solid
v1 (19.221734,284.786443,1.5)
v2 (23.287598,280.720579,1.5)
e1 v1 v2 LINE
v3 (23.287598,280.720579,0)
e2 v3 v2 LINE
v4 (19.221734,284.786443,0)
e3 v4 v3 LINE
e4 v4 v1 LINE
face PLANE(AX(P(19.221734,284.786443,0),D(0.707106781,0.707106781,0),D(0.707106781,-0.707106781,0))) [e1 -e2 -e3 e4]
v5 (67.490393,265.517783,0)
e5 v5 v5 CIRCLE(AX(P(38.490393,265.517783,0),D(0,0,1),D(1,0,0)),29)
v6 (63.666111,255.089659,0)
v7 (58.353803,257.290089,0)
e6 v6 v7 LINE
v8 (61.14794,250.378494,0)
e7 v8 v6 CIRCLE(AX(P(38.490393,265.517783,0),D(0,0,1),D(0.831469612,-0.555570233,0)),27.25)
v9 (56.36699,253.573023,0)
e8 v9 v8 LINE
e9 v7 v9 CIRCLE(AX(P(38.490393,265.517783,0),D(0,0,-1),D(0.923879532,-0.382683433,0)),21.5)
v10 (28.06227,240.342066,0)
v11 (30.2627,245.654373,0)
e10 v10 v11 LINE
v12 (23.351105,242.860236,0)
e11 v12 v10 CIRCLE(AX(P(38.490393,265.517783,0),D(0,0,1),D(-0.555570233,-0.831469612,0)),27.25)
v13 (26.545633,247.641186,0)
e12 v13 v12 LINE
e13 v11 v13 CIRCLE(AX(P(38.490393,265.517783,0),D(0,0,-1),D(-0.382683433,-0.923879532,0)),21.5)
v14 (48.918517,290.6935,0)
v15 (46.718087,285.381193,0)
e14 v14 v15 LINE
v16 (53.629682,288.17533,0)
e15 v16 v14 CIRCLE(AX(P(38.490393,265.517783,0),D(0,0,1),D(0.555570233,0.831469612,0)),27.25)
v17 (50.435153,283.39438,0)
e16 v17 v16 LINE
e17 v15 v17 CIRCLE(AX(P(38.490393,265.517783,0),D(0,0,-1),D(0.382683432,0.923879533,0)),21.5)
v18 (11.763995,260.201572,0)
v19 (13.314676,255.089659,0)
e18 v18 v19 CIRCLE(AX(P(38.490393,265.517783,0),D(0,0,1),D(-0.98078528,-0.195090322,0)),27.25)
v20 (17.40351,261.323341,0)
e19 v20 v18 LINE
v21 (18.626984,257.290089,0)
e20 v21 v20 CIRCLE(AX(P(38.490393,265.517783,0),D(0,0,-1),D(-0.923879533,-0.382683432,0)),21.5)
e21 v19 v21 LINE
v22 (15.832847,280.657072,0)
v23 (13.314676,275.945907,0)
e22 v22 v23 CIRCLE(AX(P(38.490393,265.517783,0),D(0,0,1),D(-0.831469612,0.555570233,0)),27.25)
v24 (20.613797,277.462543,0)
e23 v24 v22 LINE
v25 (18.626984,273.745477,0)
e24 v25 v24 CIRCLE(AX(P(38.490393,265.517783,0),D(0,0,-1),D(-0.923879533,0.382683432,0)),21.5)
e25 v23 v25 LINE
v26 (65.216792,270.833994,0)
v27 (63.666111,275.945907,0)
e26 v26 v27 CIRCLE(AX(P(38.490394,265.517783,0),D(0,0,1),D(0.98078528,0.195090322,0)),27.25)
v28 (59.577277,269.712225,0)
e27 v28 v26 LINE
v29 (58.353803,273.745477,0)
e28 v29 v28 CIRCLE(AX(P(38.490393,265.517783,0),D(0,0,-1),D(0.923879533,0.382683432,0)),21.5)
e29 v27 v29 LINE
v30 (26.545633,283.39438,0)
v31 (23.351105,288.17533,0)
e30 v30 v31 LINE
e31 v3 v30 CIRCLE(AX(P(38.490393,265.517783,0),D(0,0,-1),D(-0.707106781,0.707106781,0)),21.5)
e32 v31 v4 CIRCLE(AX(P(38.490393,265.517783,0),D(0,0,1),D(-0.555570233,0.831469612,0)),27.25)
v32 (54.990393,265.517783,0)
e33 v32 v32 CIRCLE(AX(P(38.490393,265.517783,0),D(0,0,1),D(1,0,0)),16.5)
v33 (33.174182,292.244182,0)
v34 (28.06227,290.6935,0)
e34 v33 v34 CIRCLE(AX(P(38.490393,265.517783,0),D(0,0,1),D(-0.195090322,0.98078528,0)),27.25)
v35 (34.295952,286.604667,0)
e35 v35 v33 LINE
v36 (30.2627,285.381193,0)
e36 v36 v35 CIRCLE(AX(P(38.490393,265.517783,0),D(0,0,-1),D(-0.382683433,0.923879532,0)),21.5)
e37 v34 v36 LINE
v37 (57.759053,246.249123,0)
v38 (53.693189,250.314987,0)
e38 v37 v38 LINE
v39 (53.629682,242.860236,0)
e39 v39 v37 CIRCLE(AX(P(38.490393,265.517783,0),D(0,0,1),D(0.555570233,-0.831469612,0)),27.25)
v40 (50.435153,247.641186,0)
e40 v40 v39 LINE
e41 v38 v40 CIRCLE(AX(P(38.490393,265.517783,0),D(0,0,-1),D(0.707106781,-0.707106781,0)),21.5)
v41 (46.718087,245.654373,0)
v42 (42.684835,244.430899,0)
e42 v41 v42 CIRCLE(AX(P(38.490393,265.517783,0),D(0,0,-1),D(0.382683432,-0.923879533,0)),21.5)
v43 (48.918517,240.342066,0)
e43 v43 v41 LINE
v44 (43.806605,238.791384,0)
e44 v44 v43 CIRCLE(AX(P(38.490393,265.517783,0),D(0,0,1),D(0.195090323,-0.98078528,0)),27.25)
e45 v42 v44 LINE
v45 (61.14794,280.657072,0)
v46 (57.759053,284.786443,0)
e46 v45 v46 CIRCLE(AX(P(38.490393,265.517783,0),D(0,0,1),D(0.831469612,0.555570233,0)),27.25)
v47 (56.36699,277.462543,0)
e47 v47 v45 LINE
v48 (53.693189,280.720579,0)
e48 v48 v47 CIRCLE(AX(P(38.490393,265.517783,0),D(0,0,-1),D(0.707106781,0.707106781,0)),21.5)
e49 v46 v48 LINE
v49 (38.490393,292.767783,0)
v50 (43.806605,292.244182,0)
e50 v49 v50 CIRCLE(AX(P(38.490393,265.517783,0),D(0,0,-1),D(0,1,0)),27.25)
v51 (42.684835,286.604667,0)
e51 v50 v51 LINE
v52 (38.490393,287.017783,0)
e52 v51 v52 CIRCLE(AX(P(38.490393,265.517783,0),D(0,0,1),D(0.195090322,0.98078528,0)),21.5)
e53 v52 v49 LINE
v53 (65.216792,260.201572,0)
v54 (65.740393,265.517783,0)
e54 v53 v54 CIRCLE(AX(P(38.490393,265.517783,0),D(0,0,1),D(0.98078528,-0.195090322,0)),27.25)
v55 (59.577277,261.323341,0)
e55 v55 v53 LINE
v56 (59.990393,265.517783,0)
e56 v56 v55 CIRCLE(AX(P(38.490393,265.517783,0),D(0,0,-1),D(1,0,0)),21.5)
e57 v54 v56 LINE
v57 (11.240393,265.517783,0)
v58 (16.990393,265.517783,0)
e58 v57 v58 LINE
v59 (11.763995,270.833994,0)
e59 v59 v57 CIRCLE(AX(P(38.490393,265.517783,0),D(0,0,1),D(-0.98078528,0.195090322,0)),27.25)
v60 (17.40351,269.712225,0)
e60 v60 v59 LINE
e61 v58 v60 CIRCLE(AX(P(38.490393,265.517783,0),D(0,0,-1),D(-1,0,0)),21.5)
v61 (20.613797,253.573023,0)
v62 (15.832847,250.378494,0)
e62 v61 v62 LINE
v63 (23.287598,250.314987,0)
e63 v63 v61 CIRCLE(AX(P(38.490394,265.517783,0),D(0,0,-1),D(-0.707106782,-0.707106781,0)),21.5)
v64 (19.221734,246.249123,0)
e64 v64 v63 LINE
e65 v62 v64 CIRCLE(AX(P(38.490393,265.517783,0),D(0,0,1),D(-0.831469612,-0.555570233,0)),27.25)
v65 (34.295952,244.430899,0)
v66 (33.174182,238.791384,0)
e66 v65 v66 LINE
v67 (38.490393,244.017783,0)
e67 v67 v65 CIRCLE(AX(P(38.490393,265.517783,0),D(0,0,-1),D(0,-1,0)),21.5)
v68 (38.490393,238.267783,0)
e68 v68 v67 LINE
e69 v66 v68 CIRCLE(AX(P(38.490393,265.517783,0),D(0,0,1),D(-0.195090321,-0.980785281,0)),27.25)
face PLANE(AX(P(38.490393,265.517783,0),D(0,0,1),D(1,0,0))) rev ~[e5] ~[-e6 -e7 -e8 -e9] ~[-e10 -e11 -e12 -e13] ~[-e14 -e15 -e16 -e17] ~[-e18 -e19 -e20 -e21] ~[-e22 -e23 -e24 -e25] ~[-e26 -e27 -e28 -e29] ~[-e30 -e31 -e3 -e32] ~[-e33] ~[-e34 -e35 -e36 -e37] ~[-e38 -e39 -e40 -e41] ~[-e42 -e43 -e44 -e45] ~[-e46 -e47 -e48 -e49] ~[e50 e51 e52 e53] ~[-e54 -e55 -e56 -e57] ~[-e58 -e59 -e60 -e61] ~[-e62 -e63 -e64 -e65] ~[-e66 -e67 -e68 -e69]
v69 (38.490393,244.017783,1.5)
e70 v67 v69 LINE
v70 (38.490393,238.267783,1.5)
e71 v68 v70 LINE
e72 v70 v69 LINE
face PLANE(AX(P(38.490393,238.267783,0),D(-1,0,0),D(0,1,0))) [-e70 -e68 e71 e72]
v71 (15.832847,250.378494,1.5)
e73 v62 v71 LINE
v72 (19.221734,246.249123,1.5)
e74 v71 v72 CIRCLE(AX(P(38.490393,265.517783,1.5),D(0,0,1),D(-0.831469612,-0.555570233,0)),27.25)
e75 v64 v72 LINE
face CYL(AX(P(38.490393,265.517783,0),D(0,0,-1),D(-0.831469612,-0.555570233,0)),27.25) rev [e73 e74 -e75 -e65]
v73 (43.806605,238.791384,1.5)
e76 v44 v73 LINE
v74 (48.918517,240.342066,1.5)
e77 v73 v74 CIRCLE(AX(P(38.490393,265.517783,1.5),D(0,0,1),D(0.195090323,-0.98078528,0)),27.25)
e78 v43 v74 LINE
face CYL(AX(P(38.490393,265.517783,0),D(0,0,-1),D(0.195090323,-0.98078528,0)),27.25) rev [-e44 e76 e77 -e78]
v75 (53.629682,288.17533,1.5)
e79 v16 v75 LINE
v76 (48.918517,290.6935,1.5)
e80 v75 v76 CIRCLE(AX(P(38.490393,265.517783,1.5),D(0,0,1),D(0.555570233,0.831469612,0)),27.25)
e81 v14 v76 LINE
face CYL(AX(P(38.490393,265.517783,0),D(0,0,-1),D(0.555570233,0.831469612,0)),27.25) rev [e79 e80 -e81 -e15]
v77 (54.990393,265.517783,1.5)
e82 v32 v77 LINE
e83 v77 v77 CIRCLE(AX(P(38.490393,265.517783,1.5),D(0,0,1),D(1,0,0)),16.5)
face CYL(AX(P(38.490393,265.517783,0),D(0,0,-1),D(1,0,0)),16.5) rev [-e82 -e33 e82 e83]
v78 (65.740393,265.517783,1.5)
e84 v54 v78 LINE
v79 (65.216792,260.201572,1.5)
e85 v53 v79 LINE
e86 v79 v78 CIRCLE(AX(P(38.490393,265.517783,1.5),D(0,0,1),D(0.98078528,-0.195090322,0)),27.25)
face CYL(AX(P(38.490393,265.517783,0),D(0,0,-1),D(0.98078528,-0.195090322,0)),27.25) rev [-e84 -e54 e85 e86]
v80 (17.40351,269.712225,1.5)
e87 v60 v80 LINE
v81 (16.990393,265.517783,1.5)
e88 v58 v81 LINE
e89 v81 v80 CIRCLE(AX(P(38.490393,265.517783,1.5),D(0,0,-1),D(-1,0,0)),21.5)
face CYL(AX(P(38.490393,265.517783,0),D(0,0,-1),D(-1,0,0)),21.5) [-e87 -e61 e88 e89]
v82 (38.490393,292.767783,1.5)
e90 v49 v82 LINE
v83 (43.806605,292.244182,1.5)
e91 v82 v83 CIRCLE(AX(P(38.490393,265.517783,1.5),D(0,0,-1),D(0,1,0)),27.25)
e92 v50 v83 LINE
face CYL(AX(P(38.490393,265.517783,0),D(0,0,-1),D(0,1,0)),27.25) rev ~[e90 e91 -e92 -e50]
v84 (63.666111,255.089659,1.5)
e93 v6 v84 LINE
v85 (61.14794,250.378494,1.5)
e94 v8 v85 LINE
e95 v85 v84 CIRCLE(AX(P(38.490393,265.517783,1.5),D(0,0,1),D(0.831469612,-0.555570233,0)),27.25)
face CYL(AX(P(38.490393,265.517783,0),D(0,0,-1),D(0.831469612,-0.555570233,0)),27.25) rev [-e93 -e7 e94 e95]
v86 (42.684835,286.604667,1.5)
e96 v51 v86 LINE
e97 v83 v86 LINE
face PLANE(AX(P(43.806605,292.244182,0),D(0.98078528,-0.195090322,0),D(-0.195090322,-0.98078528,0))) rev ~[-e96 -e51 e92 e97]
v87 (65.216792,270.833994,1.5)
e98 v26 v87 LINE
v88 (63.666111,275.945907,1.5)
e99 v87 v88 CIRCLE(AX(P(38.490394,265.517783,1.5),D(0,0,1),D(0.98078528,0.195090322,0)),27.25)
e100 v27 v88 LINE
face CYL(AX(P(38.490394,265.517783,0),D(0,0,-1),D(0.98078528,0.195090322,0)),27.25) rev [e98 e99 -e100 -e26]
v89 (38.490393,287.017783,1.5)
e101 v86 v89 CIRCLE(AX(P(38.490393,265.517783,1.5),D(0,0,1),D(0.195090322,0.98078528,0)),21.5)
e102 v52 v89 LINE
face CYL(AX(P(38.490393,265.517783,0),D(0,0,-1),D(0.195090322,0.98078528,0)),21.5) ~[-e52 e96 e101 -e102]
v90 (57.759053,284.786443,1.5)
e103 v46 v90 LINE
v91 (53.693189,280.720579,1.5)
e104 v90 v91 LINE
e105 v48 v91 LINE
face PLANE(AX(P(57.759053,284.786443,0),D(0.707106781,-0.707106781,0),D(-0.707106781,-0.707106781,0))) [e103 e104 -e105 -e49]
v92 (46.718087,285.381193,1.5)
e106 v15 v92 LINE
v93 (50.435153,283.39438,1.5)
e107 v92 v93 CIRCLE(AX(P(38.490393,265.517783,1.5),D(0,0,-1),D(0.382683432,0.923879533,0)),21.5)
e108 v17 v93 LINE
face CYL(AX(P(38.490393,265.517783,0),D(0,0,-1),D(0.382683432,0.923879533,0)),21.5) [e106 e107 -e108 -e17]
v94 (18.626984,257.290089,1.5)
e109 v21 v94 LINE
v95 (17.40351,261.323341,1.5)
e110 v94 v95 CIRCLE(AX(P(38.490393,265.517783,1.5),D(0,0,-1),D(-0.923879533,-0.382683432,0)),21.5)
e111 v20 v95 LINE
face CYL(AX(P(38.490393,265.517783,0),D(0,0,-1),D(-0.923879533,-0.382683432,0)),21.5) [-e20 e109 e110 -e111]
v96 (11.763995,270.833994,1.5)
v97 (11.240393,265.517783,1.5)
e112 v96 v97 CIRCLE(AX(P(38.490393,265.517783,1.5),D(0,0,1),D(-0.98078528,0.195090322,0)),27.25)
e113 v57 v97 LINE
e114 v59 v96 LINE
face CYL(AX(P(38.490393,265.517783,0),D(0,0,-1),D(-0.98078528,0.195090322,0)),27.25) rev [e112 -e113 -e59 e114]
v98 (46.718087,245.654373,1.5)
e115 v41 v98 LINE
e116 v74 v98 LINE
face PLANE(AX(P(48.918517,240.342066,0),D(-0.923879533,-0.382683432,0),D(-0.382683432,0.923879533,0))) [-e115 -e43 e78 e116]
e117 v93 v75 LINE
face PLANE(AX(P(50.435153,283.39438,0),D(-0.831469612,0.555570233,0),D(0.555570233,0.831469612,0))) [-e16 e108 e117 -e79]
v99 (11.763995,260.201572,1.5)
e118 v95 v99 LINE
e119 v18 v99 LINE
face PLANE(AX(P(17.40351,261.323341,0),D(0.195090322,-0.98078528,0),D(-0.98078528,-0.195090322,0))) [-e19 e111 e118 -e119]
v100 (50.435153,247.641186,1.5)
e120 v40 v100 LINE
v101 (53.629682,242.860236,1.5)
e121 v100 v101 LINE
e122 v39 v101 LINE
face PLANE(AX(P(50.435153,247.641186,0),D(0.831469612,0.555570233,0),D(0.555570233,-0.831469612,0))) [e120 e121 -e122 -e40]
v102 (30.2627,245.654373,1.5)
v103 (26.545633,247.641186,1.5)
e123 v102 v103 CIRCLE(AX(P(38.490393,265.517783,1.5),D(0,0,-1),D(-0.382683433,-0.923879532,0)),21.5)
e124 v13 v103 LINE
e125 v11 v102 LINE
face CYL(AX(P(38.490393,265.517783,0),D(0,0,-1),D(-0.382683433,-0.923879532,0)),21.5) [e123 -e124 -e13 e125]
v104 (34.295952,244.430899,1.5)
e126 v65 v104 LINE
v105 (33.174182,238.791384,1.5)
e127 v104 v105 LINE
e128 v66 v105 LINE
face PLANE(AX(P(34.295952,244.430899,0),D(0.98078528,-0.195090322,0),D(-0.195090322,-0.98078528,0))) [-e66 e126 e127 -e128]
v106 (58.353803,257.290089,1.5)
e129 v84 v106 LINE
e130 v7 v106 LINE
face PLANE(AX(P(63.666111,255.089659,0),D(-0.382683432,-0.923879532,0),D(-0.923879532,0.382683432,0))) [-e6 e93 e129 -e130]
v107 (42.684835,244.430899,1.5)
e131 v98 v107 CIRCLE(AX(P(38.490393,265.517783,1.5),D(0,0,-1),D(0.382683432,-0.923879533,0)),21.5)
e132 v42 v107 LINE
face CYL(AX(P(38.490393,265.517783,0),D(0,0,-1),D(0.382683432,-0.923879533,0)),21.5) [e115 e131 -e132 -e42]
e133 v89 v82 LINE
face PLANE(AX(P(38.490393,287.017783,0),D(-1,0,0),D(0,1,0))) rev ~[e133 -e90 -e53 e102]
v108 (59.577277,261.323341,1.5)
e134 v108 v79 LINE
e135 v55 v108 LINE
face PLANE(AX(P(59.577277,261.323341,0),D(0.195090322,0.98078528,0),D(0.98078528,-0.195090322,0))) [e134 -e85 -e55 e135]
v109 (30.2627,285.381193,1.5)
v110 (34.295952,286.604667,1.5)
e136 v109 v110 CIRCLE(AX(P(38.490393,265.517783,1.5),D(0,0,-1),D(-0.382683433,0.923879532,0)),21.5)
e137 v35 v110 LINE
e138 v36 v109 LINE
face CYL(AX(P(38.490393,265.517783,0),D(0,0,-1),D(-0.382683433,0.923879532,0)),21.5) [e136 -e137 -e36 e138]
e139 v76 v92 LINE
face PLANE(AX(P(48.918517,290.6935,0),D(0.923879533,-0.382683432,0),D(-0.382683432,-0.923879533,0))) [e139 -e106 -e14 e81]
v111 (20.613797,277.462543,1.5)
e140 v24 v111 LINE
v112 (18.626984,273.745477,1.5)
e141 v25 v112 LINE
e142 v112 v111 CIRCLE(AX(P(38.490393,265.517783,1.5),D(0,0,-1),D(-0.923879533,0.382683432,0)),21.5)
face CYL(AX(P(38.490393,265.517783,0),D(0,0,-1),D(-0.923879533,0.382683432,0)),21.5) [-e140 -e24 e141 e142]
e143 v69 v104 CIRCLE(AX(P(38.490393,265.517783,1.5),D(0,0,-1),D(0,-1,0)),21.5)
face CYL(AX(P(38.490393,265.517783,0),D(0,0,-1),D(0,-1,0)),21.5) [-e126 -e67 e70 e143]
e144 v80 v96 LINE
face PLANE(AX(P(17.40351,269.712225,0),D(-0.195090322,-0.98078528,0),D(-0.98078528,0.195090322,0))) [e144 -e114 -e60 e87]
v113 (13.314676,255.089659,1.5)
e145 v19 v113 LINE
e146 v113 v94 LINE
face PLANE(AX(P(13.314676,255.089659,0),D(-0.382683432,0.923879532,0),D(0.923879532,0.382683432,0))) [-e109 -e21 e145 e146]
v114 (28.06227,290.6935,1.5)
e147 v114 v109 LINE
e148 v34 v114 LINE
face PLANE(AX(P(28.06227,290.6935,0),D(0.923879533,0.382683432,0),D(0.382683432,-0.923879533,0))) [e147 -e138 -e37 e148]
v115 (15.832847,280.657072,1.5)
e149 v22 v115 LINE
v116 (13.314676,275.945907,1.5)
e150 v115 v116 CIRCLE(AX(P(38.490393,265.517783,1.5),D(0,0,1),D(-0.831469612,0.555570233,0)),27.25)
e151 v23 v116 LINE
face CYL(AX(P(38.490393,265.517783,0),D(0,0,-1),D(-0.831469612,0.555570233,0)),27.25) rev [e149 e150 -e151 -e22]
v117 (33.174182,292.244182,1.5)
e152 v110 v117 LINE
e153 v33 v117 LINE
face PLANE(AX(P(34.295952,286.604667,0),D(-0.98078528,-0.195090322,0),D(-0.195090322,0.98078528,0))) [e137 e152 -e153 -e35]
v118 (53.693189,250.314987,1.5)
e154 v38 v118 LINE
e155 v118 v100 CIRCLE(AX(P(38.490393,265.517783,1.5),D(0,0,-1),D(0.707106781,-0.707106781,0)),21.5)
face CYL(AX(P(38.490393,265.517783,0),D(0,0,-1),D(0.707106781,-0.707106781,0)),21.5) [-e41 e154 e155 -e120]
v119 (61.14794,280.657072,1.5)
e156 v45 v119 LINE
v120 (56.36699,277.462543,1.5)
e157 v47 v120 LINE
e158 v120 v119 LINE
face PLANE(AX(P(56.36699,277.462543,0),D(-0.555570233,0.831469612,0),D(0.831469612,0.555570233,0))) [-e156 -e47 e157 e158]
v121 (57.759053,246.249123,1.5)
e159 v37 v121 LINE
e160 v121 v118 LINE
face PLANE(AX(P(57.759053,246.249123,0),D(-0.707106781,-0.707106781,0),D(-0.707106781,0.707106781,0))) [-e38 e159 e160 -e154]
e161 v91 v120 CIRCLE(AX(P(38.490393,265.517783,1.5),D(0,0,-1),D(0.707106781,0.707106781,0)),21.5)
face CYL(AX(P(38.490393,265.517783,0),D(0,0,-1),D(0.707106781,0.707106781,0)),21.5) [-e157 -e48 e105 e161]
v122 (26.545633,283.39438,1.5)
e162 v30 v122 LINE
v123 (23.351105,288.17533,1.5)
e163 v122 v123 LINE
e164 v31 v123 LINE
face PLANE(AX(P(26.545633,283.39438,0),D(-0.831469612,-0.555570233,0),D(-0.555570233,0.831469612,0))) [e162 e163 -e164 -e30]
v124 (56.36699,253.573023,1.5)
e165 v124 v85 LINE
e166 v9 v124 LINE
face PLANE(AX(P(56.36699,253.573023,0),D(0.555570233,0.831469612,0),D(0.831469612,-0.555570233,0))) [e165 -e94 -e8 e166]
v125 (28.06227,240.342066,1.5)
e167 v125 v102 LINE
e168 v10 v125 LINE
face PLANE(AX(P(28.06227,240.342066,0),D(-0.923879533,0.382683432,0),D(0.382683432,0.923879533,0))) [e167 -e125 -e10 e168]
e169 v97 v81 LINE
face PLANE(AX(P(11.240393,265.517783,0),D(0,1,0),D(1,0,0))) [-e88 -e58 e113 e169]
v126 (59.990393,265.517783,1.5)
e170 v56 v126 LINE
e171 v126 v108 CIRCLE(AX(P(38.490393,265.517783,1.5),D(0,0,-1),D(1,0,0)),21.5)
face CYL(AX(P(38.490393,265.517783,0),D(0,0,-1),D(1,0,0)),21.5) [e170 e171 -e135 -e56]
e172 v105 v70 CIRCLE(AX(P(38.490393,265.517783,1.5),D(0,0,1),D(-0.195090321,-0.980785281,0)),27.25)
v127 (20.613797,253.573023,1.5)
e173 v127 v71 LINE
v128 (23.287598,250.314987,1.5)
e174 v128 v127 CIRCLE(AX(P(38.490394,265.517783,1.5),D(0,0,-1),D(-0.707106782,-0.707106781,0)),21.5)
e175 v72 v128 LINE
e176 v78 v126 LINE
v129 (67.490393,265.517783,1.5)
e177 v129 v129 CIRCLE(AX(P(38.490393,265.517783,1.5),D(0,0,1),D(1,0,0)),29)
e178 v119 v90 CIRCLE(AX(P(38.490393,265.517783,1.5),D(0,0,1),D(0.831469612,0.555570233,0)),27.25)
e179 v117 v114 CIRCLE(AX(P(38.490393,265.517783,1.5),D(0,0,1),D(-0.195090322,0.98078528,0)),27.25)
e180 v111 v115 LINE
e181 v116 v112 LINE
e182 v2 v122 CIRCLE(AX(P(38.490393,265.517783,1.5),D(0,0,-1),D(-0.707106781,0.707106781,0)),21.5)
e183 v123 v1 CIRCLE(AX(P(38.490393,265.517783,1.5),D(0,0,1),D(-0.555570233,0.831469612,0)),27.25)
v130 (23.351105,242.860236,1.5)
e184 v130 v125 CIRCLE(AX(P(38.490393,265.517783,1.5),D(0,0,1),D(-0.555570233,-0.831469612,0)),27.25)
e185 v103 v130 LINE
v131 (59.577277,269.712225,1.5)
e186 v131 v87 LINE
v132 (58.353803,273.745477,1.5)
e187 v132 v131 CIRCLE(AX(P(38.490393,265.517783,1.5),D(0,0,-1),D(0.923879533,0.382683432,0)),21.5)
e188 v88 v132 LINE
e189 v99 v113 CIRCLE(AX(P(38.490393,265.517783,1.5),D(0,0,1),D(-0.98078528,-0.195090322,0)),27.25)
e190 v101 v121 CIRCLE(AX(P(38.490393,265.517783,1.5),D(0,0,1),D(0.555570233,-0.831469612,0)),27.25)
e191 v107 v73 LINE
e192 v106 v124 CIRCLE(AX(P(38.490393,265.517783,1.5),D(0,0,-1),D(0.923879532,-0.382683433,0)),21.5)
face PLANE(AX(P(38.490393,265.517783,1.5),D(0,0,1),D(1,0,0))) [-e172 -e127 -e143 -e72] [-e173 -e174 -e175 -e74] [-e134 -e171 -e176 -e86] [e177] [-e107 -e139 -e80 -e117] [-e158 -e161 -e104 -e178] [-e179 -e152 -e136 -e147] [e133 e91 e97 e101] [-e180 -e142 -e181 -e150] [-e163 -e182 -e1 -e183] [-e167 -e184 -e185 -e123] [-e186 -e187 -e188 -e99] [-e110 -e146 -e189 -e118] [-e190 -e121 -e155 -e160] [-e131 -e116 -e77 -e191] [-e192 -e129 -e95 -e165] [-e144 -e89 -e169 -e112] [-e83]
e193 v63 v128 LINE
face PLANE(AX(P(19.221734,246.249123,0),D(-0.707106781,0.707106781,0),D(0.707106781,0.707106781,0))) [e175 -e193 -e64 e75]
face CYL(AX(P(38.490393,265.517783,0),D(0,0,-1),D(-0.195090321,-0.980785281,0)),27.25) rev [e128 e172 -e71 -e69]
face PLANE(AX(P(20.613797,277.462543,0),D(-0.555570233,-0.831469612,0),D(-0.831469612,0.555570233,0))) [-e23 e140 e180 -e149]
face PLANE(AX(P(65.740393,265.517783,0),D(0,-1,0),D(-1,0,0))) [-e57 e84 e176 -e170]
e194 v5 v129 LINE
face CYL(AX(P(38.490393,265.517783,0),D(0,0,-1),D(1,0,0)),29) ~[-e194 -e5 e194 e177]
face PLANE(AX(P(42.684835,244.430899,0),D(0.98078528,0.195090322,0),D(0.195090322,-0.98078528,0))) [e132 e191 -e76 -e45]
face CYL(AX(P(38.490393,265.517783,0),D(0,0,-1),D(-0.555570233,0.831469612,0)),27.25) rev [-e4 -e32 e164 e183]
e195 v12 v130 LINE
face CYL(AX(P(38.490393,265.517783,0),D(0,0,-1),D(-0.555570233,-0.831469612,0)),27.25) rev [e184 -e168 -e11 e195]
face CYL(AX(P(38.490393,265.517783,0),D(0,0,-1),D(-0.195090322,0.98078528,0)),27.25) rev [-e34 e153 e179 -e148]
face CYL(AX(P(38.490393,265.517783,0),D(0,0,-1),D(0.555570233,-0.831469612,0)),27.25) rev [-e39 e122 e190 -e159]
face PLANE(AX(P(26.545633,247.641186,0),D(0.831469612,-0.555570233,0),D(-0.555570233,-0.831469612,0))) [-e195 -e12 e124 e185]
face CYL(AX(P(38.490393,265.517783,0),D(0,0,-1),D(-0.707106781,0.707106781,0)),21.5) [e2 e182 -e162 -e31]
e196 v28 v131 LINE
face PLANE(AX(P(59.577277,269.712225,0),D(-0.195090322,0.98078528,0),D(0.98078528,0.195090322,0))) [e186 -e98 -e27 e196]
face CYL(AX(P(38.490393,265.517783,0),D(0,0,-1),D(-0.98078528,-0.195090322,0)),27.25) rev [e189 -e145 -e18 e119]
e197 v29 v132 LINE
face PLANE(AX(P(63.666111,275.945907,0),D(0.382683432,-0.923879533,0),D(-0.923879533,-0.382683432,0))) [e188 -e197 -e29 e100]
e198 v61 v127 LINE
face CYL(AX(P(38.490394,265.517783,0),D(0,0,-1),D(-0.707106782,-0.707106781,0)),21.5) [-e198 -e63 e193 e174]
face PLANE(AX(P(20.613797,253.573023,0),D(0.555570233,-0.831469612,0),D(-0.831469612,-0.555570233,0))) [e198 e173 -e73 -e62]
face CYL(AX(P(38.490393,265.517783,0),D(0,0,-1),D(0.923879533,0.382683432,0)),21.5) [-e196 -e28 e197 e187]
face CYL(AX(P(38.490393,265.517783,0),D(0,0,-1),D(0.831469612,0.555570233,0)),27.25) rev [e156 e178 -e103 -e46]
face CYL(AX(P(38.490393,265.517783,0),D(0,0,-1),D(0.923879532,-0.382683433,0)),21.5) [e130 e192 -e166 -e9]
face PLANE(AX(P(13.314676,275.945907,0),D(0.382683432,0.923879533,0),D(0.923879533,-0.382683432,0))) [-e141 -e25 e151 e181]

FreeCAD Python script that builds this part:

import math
import FreeCAD as App
import Part
import Sketcher
from FreeCAD import Vector
Q = App.Units.Quantity

doc = App.newDocument("Part")
body = doc.addObject("PartDesign::Body", "Body")

# Sketch on XY plane
sketch1 = body.newObject("Sketcher::SketchObject", "Sketch")
sketch1.AttachmentSupport = (doc.getObject("XY_Plane"), [""])
sketch1.MapMode = "FlatFace"
sketch1.addGeometry(Part.Circle(Vector(38.5, 265.5, 0), Vector(0, 0, 1), 29), False)
sketch1.addGeometry(Part.LineSegment(Vector(15.8, 250.4, 0), Vector(20.6, 253.6, 0)), False)
sketch1.addGeometry(Part.ArcOfCircle(Part.Circle(Vector(38.5, 265.5, 0), Vector(0, 0, 1), 21.5), math.radians(-146.25), math.radians(-135)), False)
sketch1.addGeometry(Part.LineSegment(Vector(23.3, 250.3, 0), Vector(19.2, 246.2, 0)), False)
sketch1.addGeometry(Part.ArcOfCircle(Part.Circle(Vector(38.5, 265.5, 0), Vector(0, 0, 1), 27.2), math.radians(-146.25), math.radians(-135)), False)
sketch1.addGeometry(Part.LineSegment(Vector(23.4, 242.9, 0), Vector(26.5, 247.6, 0)), False)
sketch1.addGeometry(Part.ArcOfCircle(Part.Circle(Vector(38.5, 265.5, 0), Vector(0, 0, 1), 21.5), math.radians(-123.75), math.radians(-112.5)), False)
sketch1.addGeometry(Part.LineSegment(Vector(30.3, 245.7, 0), Vector(28.1, 240.3, 0)), False)
sketch1.addGeometry(Part.ArcOfCircle(Part.Circle(Vector(38.5, 265.5, 0), Vector(0, 0, 1), 27.3), math.radians(-123.75), math.radians(-112.5)), False)
sketch1.addGeometry(Part.LineSegment(Vector(33.2, 238.8, 0), Vector(34.3, 244.4, 0)), False)
sketch1.addGeometry(Part.ArcOfCircle(Part.Circle(Vector(38.5, 265.5, 0), Vector(0, 0, 1), 21.5), math.radians(-101.25), math.radians(-90)), False)
sketch1.addGeometry(Part.LineSegment(Vector(38.5, 244, 0), Vector(38.5, 238.3, 0)), False)
sketch1.addGeometry(Part.ArcOfCircle(Part.Circle(Vector(38.5, 265.5, 0), Vector(0, 0, 1), 27.3), math.radians(-101.25), math.radians(-90)), False)
sketch1.addGeometry(Part.LineSegment(Vector(11.8, 260.2, 0), Vector(17.4, 261.3, 0)), False)
sketch1.addGeometry(Part.ArcOfCircle(Part.Circle(Vector(38.5, 265.5, 0), Vector(0, 0, 1), 21.5), math.radians(-168.75), math.radians(-157.5)), False)
sketch1.addGeometry(Part.LineSegment(Vector(18.6, 257.3, 0), Vector(13.3, 255.1, 0)), False)
sketch1.addGeometry(Part.ArcOfCircle(Part.Circle(Vector(38.5, 265.5, 0), Vector(0, 0, 1), 27.2), math.radians(-168.75), math.radians(-157.5)), False)
sketch1.addGeometry(Part.LineSegment(Vector(43.8, 238.8, 0), Vector(42.7, 244.4, 0)), False)
sketch1.addGeometry(Part.ArcOfCircle(Part.Circle(Vector(38.5, 265.5, 0), Vector(0, 0, 1), 21.5), math.radians(-78.75), math.radians(-67.5)), False)
sketch1.addGeometry(Part.LineSegment(Vector(46.7, 245.7, 0), Vector(48.9, 240.3, 0)), False)
sketch1.addGeometry(Part.ArcOfCircle(Part.Circle(Vector(38.5, 265.5, 0), Vector(0, 0, 1), 27.3), math.radians(-78.75), math.radians(-67.5)), False)
sketch1.addGeometry(Part.LineSegment(Vector(53.6, 242.9, 0), Vector(50.4, 247.6, 0)), False)
sketch1.addGeometry(Part.ArcOfCircle(Part.Circle(Vector(38.5, 265.5, 0), Vector(0, 0, 1), 21.5), math.radians(-56.25), math.radians(-45)), False)
sketch1.addGeometry(Part.LineSegment(Vector(53.7, 250.3, 0), Vector(57.8, 246.2, 0)), False)
sketch1.addGeometry(Part.ArcOfCircle(Part.Circle(Vector(38.5, 265.5, 0), Vector(0, 0, 1), 27.3), math.radians(-56.25), math.radians(-45)), False)
sketch1.addGeometry(Part.LineSegment(Vector(61.1, 250.4, 0), Vector(56.4, 253.6, 0)), False)
sketch1.addGeometry(Part.ArcOfCircle(Part.Circle(Vector(38.5, 265.5, 0), Vector(0, 0, 1), 21.5), math.radians(-33.75), math.radians(-22.5)), False)
sketch1.addGeometry(Part.LineSegment(Vector(58.4, 257.3, 0), Vector(63.7, 255.1, 0)), False)
sketch1.addGeometry(Part.ArcOfCircle(Part.Circle(Vector(38.5, 265.5, 0), Vector(0, 0, 1), 27.3), math.radians(-33.75), math.radians(-22.5)), False)
sketch1.addGeometry(Part.LineSegment(Vector(65.2, 260.2, 0), Vector(59.6, 261.3, 0)), False)
sketch1.addGeometry(Part.ArcOfCircle(Part.Circle(Vector(38.5, 265.5, 0), Vector(0, 0, 1), 21.5), math.radians(-11.25), math.radians(0)), False)
sketch1.addGeometry(Part.LineSegment(Vector(60, 265.5, 0), Vector(65.7, 265.5, 0)), False)
sketch1.addGeometry(Part.ArcOfCircle(Part.Circle(Vector(38.5, 265.5, 0), Vector(0, 0, 1), 27.2), math.radians(-11.25), math.radians(0)), False)
sketch1.addGeometry(Part.LineSegment(Vector(11.8, 270.8, 0), Vector(17.4, 269.7, 0)), False)
sketch1.addGeometry(Part.ArcOfCircle(Part.Circle(Vector(38.5, 265.5, 0), Vector(0, 0, 1), 21.5), math.radians(168.75), math.radians(180)), False)
sketch1.addGeometry(Part.LineSegment(Vector(17, 265.5, 0), Vector(11.2, 265.5, 0)), False)
sketch1.addGeometry(Part.ArcOfCircle(Part.Circle(Vector(38.5, 265.5, 0), Vector(0, 0, 1), 27.2), math.radians(168.75), math.radians(180)), False)
sketch1.addGeometry(Part.LineSegment(Vector(15.8, 280.7, 0), Vector(20.6, 277.5, 0)), False)
sketch1.addGeometry(Part.ArcOfCircle(Part.Circle(Vector(38.5, 265.5, 0), Vector(0, 0, 1), 21.5), math.radians(146.25), math.radians(157.5)), False)
sketch1.addGeometry(Part.LineSegment(Vector(18.6, 273.7, 0), Vector(13.3, 275.9, 0)), False)
sketch1.addGeometry(Part.ArcOfCircle(Part.Circle(Vector(38.5, 265.5, 0), Vector(0, 0, 1), 27.2), math.radians(146.25), math.radians(157.5)), False)
sketch1.addGeometry(Part.LineSegment(Vector(23.4, 288.2, 0), Vector(26.5, 283.4, 0)), False)
sketch1.addGeometry(Part.ArcOfCircle(Part.Circle(Vector(38.5, 265.5, 0), Vector(0, 0, 1), 21.5), math.radians(123.75), math.radians(135)), False)
sketch1.addGeometry(Part.LineSegment(Vector(23.3, 280.7, 0), Vector(19.2, 284.8, 0)), False)
sketch1.addGeometry(Part.ArcOfCircle(Part.Circle(Vector(38.5, 265.5, 0), Vector(0, 0, 1), 27.2), math.radians(123.75), math.radians(135)), False)
sketch1.addGeometry(Part.LineSegment(Vector(33.2, 292.2, 0), Vector(34.3, 286.6, 0)), False)
sketch1.addGeometry(Part.ArcOfCircle(Part.Circle(Vector(38.5, 265.5, 0), Vector(0, 0, 1), 21.5), math.radians(101.25), math.radians(112.5)), False)
sketch1.addGeometry(Part.LineSegment(Vector(30.3, 285.4, 0), Vector(28.1, 290.7, 0)), False)
sketch1.addGeometry(Part.ArcOfCircle(Part.Circle(Vector(38.5, 265.5, 0), Vector(0, 0, 1), 27.2), math.radians(101.25), math.radians(112.5)), False)
sketch1.addGeometry(Part.Circle(Vector(38.5, 265.5, 0), Vector(0, 0, 1), 16.5), False)
sketch1.addGeometry(Part.LineSegment(Vector(65.2, 270.8, 0), Vector(59.6, 269.7, 0)), False)
sketch1.addGeometry(Part.ArcOfCircle(Part.Circle(Vector(38.5, 265.5, 0), Vector(0, 0, 1), 21.5), math.radians(11.25), math.radians(22.5)), False)
sketch1.addGeometry(Part.LineSegment(Vector(58.4, 273.7, 0), Vector(63.7, 275.9, 0)), False)
sketch1.addGeometry(Part.ArcOfCircle(Part.Circle(Vector(38.5, 265.5, 0), Vector(0, 0, 1), 27.2), math.radians(11.25), math.radians(22.5)), False)
sketch1.addGeometry(Part.ArcOfCircle(Part.Circle(Vector(38.5, 265.5, 0), Vector(0, 0, 1), 21.5), math.radians(78.75), math.radians(90)), False)
sketch1.addGeometry(Part.LineSegment(Vector(38.5, 287, 0), Vector(38.5, 292.8, 0)), False)
sketch1.addGeometry(Part.ArcOfCircle(Part.Circle(Vector(38.5, 265.5, 0), Vector(0, 0, 1), 27.2), math.radians(78.75), math.radians(90)), False)
sketch1.addGeometry(Part.LineSegment(Vector(43.8, 292.2, 0), Vector(42.7, 286.6, 0)), False)
sketch1.addGeometry(Part.LineSegment(Vector(53.6, 288.2, 0), Vector(50.4, 283.4, 0)), False)
sketch1.addGeometry(Part.ArcOfCircle(Part.Circle(Vector(38.5, 265.5, 0), Vector(0, 0, 1), 21.5), math.radians(56.25), math.radians(67.5)), False)
sketch1.addGeometry(Part.LineSegment(Vector(46.7, 285.4, 0), Vector(48.9, 290.7, 0)), False)
sketch1.addGeometry(Part.ArcOfCircle(Part.Circle(Vector(38.5, 265.5, 0), Vector(0, 0, 1), 27.3), math.radians(56.25), math.radians(67.5)), False)
sketch1.addGeometry(Part.LineSegment(Vector(61.1, 280.7, 0), Vector(56.4, 277.5, 0)), False)
sketch1.addGeometry(Part.ArcOfCircle(Part.Circle(Vector(38.5, 265.5, 0), Vector(0, 0, 1), 21.5), math.radians(33.75), math.radians(45)), False)
sketch1.addGeometry(Part.LineSegment(Vector(53.7, 280.7, 0), Vector(57.8, 284.8, 0)), False)
sketch1.addGeometry(Part.ArcOfCircle(Part.Circle(Vector(38.5, 265.5, 0), Vector(0, 0, 1), 27.2), math.radians(33.75), math.radians(45)), False)
sketch1.addConstraint(Sketcher.Constraint("Coincident", 1, 2, 2, 1))
sketch1.addConstraint(Sketcher.Constraint("Coincident", 2, 2, 3, 1))
sketch1.addConstraint(Sketcher.Constraint("Coincident", 3, 2, 4, 2))
sketch1.addConstraint(Sketcher.Constraint("Coincident", 4, 1, 1, 1))
sketch1.addConstraint(Sketcher.Constraint("Coincident", 5, 2, 6, 1))
sketch1.addConstraint(Sketcher.Constraint("Coincident", 6, 2, 7, 1))
sketch1.addConstraint(Sketcher.Constraint("Coincident", 7, 2, 8, 2))
sketch1.addConstraint(Sketcher.Constraint("Coincident", 8, 1, 5, 1))
sketch1.addConstraint(Sketcher.Constraint("Coincident", 9, 2, 10, 1))
sketch1.addConstraint(Sketcher.Constraint("Coincident", 10, 2, 11, 1))
sketch1.addConstraint(Sketcher.Constraint("Coincident", 11, 2, 12, 2))
sketch1.addConstraint(Sketcher.Constraint("Coincident", 12, 1, 9, 1))
sketch1.addConstraint(Sketcher.Constraint("Coincident", 13, 2, 14, 1))
sketch1.addConstraint(Sketcher.Constraint("Coincident", 14, 2, 15, 1))
sketch1.addConstraint(Sketcher.Constraint("Coincident", 15, 2, 16, 2))
sketch1.addConstraint(Sketcher.Constraint("Coincident", 16, 1, 13, 1))
sketch1.addConstraint(Sketcher.Constraint("Coincident", 17, 2, 18, 1))
sketch1.addConstraint(Sketcher.Constraint("Coincident", 18, 2, 19, 1))
sketch1.addConstraint(Sketcher.Constraint("Coincident", 19, 2, 20, 2))
sketch1.addConstraint(Sketcher.Constraint("Coincident", 20, 1, 17, 1))
sketch1.addConstraint(Sketcher.Constraint("Coincident", 21, 2, 22, 1))
sketch1.addConstraint(Sketcher.Constraint("Coincident", 22, 2, 23, 1))
sketch1.addConstraint(Sketcher.Constraint("Coincident", 23, 2, 24, 2))
sketch1.addConstraint(Sketcher.Constraint("Coincident", 24, 1, 21, 1))
sketch1.addConstraint(Sketcher.Constraint("Coincident", 25, 2, 26, 1))
sketch1.addConstraint(Sketcher.Constraint("Coincident", 26, 2, 27, 1))
sketch1.addConstraint(Sketcher.Constraint("Coincident", 27, 2, 28, 2))
sketch1.addConstraint(Sketcher.Constraint("Coincident", 28, 1, 25, 1))
sketch1.addConstraint(Sketcher.Constraint("Coincident", 29, 2, 30, 1))
sketch1.addConstraint(Sketcher.Constraint("Coincident", 30, 2, 31, 1))
sketch1.addConstraint(Sketcher.Constraint("Coincident", 31, 2, 32, 2))
sketch1.addConstraint(Sketcher.Constraint("Coincident", 32, 1, 29, 1))
sketch1.addConstraint(Sketcher.Constraint("Coincident", 33, 2, 34, 1))
sketch1.addConstraint(Sketcher.Constraint("Coincident", 34, 2, 35, 1))
sketch1.addConstraint(Sketcher.Constraint("Coincident", 35, 2, 36, 2))
sketch1.addConstraint(Sketcher.Constraint("Coincident", 36, 1, 33, 1))
sketch1.addConstraint(Sketcher.Constraint("Coincident", 37, 2, 38, 1))
sketch1.addConstraint(Sketcher.Constraint("Coincident", 38, 2, 39, 1))
sketch1.addConstraint(Sketcher.Constraint("Coincident", 39, 2, 40, 2))
sketch1.addConstraint(Sketcher.Constraint("Coincident", 40, 1, 37, 1))
sketch1.addConstraint(Sketcher.Constraint("Coincident", 41, 2, 42, 1))
sketch1.addConstraint(Sketcher.Constraint("Coincident", 42, 2, 43, 1))
sketch1.addConstraint(Sketcher.Constraint("Coincident", 43, 2, 44, 2))
sketch1.addConstraint(Sketcher.Constraint("Coincident", 44, 1, 41, 1))
sketch1.addConstraint(Sketcher.Constraint("Coincident", 45, 2, 46, 1))
sketch1.addConstraint(Sketcher.Constraint("Coincident", 46, 2, 47, 1))
sketch1.addConstraint(Sketcher.Constraint("Coincident", 47, 2, 48, 2))
sketch1.addConstraint(Sketcher.Constraint("Coincident", 48, 1, 45, 1))
sketch1.addConstraint(Sketcher.Constraint("Coincident", 50, 2, 51, 1))
sketch1.addConstraint(Sketcher.Constraint("Coincident", 51, 2, 52, 1))
sketch1.addConstraint(Sketcher.Constraint("Coincident", 52, 2, 53, 2))
sketch1.addConstraint(Sketcher.Constraint("Coincident", 53, 1, 50, 1))
sketch1.addConstraint(Sketcher.Constraint("Coincident", 54, 2, 55, 1))
sketch1.addConstraint(Sketcher.Constraint("Coincident", 55, 2, 56, 2))
sketch1.addConstraint(Sketcher.Constraint("Coincident", 56, 1, 57, 1))
sketch1.addConstraint(Sketcher.Constraint("Coincident", 57, 2, 54, 1))
sketch1.addConstraint(Sketcher.Constraint("Coincident", 58, 2, 59, 1))
sketch1.addConstraint(Sketcher.Constraint("Coincident", 59, 2, 60, 1))
sketch1.addConstraint(Sketcher.Constraint("Coincident", 60, 2, 61, 2))
sketch1.addConstraint(Sketcher.Constraint("Coincident", 61, 1, 58, 1))
sketch1.addConstraint(Sketcher.Constraint("Coincident", 62, 2, 63, 1))
sketch1.addConstraint(Sketcher.Constraint("Coincident", 63, 2, 64, 1))
sketch1.addConstraint(Sketcher.Constraint("Coincident", 64, 2, 65, 2))
sketch1.addConstraint(Sketcher.Constraint("Coincident", 65, 1, 62, 1))
sketch1.addConstraint(Sketcher.Constraint("Vertical", 11))
sketch1.addConstraint(Sketcher.Constraint("Horizontal", 31))
sketch1.addConstraint(Sketcher.Constraint("Horizontal", 35))
sketch1.addConstraint(Sketcher.Constraint("Vertical", 55))
sketch1.addConstraint(Sketcher.Constraint("Coincident", 2, 3, 0, 3))
sketch1.addConstraint(Sketcher.Constraint("Coincident", 4, 3, 0, 3))
sketch1.addConstraint(Sketcher.Constraint("Coincident", 6, 3, 0, 3))
sketch1.addConstraint(Sketcher.Constraint("Coincident", 8, 3, 0, 3))
sketch1.addConstraint(Sketcher.Constraint("Coincident", 10, 3, 0, 3))
sketch1.addConstraint(Sketcher.Constraint("Coincident", 12, 3, 0, 3))
sketch1.addConstraint(Sketcher.Constraint("Coincident", 14, 3, 0, 3))
sketch1.addConstraint(Sketcher.Constraint("Coincident", 16, 3, 0, 3))
sketch1.addConstraint(Sketcher.Constraint("Coincident", 18, 3, 0, 3))
sketch1.addConstraint(Sketcher.Constraint("Coincident", 20, 3, 0, 3))
sketch1.addConstraint(Sketcher.Constraint("Coincident", 22, 3, 0, 3))
sketch1.addConstraint(Sketcher.Constraint("Coincident", 24, 3, 0, 3))
sketch1.addConstraint(Sketcher.Constraint("Coincident", 26, 3, 0, 3))
sketch1.addConstraint(Sketcher.Constraint("Coincident", 28, 3, 0, 3))
sketch1.addConstraint(Sketcher.Constraint("Coincident", 30, 3, 0, 3))
sketch1.addConstraint(Sketcher.Constraint("Coincident", 32, 3, 0, 3))
sketch1.addConstraint(Sketcher.Constraint("Coincident", 34, 3, 0, 3))
sketch1.addConstraint(Sketcher.Constraint("Coincident", 36, 3, 0, 3))
sketch1.addConstraint(Sketcher.Constraint("Coincident", 38, 3, 0, 3))
sketch1.addConstraint(Sketcher.Constraint("Coincident", 40, 3, 0, 3))
sketch1.addConstraint(Sketcher.Constraint("Coincident", 42, 3, 0, 3))
sketch1.addConstraint(Sketcher.Constraint("Coincident", 44, 3, 0, 3))
sketch1.addConstraint(Sketcher.Constraint("Coincident", 46, 3, 0, 3))
sketch1.addConstraint(Sketcher.Constraint("Coincident", 48, 3, 0, 3))
sketch1.addConstraint(Sketcher.Constraint("Coincident", 49, 3, 0, 3))
sketch1.addConstraint(Sketcher.Constraint("Coincident", 51, 3, 0, 3))
sketch1.addConstraint(Sketcher.Constraint("Coincident", 53, 3, 0, 3))
sketch1.addConstraint(Sketcher.Constraint("Coincident", 54, 3, 0, 3))
sketch1.addConstraint(Sketcher.Constraint("Coincident", 56, 3, 0, 3))
sketch1.addConstraint(Sketcher.Constraint("Coincident", 59, 3, 0, 3))
sketch1.addConstraint(Sketcher.Constraint("Coincident", 61, 3, 0, 3))
sketch1.addConstraint(Sketcher.Constraint("Coincident", 63, 3, 0, 3))
sketch1.addConstraint(Sketcher.Constraint("Coincident", 65, 3, 0, 3))
sketch1.addConstraint(Sketcher.Constraint("Equal", 2, 6))
sketch1.addConstraint(Sketcher.Constraint("Equal", 4, 8))
sketch1.addConstraint(Sketcher.Constraint("Equal", 6, 10))
sketch1.addConstraint(Sketcher.Constraint("Equal", 8, 12))
sketch1.addConstraint(Sketcher.Constraint("Equal", 10, 14))
sketch1.addConstraint(Sketcher.Constraint("Equal", 12, 16))
sketch1.addConstraint(Sketcher.Constraint("Equal", 14, 18))
sketch1.addConstraint(Sketcher.Constraint("Equal", 16, 20))
sketch1.addConstraint(Sketcher.Constraint("Equal", 18, 22))
sketch1.addConstraint(Sketcher.Constraint("Equal", 20, 24))
sketch1.addConstraint(Sketcher.Constraint("Equal", 22, 26))
sketch1.addConstraint(Sketcher.Constraint("Equal", 24, 28))
sketch1.addConstraint(Sketcher.Constraint("Equal", 26, 30))
sketch1.addConstraint(Sketcher.Constraint("Equal", 28, 32))
sketch1.addConstraint(Sketcher.Constraint("Equal", 30, 34))
sketch1.addConstraint(Sketcher.Constraint("Equal", 32, 36))
sketch1.addConstraint(Sketcher.Constraint("Equal", 34, 38))
sketch1.addConstraint(Sketcher.Constraint("Equal", 36, 40))
sketch1.addConstraint(Sketcher.Constraint("Equal", 38, 42))
sketch1.addConstraint(Sketcher.Constraint("Equal", 40, 44))
sketch1.addConstraint(Sketcher.Constraint("Equal", 42, 46))
sketch1.addConstraint(Sketcher.Constraint("Equal", 44, 48))
sketch1.addConstraint(Sketcher.Constraint("Equal", 46, 51))
sketch1.addConstraint(Sketcher.Constraint("Equal", 48, 53))
sketch1.addConstraint(Sketcher.Constraint("Equal", 51, 54))
sketch1.addConstraint(Sketcher.Constraint("Equal", 53, 56))
sketch1.addConstraint(Sketcher.Constraint("Equal", 54, 59))
sketch1.addConstraint(Sketcher.Constraint("Equal", 56, 61))
sketch1.addConstraint(Sketcher.Constraint("Equal", 59, 63))
sketch1.addConstraint(Sketcher.Constraint("Equal", 61, 65))
sketch1.addConstraint(Sketcher.Constraint("Perpendicular", 13, 17))
sketch1.addConstraint(Sketcher.Constraint("Perpendicular", 15, 19))
sketch1.addConstraint(Sketcher.Constraint("Perpendicular", 1, 21))
sketch1.addConstraint(Sketcher.Constraint("Perpendicular", 3, 23))
sketch1.addConstraint(Sketcher.Constraint("Perpendicular", 5, 25))
sketch1.addConstraint(Sketcher.Constraint("Perpendicular", 7, 27))
sketch1.addConstraint(Sketcher.Constraint("Perpendicular", 9, 29))
sketch1.addConstraint(Sketcher.Constraint("Parallel", 29, 33))
sketch1.addConstraint(Sketcher.Constraint("Parallel", 25, 37))
sketch1.addConstraint(Sketcher.Constraint("Parallel", 27, 39))
sketch1.addConstraint(Sketcher.Constraint("Parallel", 21, 41))
sketch1.addConstraint(Sketcher.Constraint("Parallel", 23, 43))
sketch1.addConstraint(Sketcher.Constraint("Parallel", 17, 45))
sketch1.addConstraint(Sketcher.Constraint("Parallel", 19, 47))
sketch1.addConstraint(Sketcher.Constraint("Perpendicular", 45, 50))
sketch1.addConstraint(Sketcher.Constraint("Perpendicular", 47, 52))
sketch1.addConstraint(Sketcher.Constraint("Perpendicular", 33, 57))
sketch1.addConstraint(Sketcher.Constraint("Perpendicular", 37, 58))
sketch1.addConstraint(Sketcher.Constraint("Perpendicular", 39, 60))
sketch1.addConstraint(Sketcher.Constraint("Perpendicular", 41, 62))
sketch1.addConstraint(Sketcher.Constraint("Perpendicular", 43, 64))
sketch1.addConstraint(Sketcher.Constraint("Horizontal", 9, 2, 17, 2))
sketch1.addConstraint(Sketcher.Constraint("Horizontal", 6, 2, 18, 2))
sketch1.addConstraint(Sketcher.Constraint("Horizontal", 7, 2, 19, 2))
sketch1.addConstraint(Sketcher.Constraint("Horizontal", 12, 1, 20, 1))
sketch1.addConstraint(Sketcher.Constraint("Horizontal", 5, 2, 21, 2))
sketch1.addConstraint(Sketcher.Constraint("Horizontal", 2, 2, 22, 2))
sketch1.addConstraint(Sketcher.Constraint("Horizontal", 3, 2, 23, 2))
sketch1.addConstraint(Sketcher.Constraint("Horizontal", 8, 1, 24, 1))
sketch1.addConstraint(Sketcher.Constraint("Horizontal", 1, 2, 25, 2))
sketch1.addConstraint(Sketcher.Constraint("Horizontal", 14, 2, 26, 2))
sketch1.addConstraint(Sketcher.Constraint("Horizontal", 13, 2, 29, 2))
sketch1.addConstraint(Sketcher.Constraint("Horizontal", 65, 3, 30, 2))
sketch1.addConstraint(Sketcher.Constraint("Horizontal", 31, 2, 34, 2))
sketch1.addConstraint(Sketcher.Constraint("Horizontal", 33, 2, 50, 2))
sketch1.addConstraint(Sketcher.Constraint("Horizontal", 38, 2, 51, 2))
sketch1.addConstraint(Sketcher.Constraint("Horizontal", 48, 1, 56, 1))
sketch1.addConstraint(Sketcher.Constraint("Horizontal", 41, 2, 58, 2))
sketch1.addConstraint(Sketcher.Constraint("Horizontal", 46, 2, 59, 2))
sketch1.addConstraint(Sketcher.Constraint("Horizontal", 37, 2, 62, 2))
sketch1.addConstraint(Sketcher.Constraint("Horizontal", 42, 2, 63, 2))
sketch1.addConstraint(Sketcher.Constraint("Vertical", 65, 3, 10, 2))
sketch1.addConstraint(Sketcher.Constraint("Vertical", 13, 2, 33, 2))
sketch1.addConstraint(Sketcher.Constraint("Vertical", 1, 2, 37, 2))
sketch1.addConstraint(Sketcher.Constraint("Vertical", 14, 2, 38, 2))
sketch1.addConstraint(Sketcher.Constraint("Vertical", 5, 2, 41, 2))
sketch1.addConstraint(Sketcher.Constraint("Vertical", 2, 2, 42, 2))
sketch1.addConstraint(Sketcher.Constraint("Vertical", 9, 2, 45, 2))
sketch1.addConstraint(Sketcher.Constraint("Vertical", 6, 2, 46, 2))
sketch1.addConstraint(Sketcher.Constraint("Vertical", 11, 2, 54, 2))
sketch1.addConstraint(Sketcher.Constraint("Diameter", 0, Q("58 mm")))
sketch1.addConstraint(Sketcher.Constraint("Diameter", 49, Q("33 mm")))
sketch1.addConstraint(Sketcher.Constraint("Radius", 2, Q("21.5 mm")))
sketch1.addConstraint(Sketcher.Constraint("Radius", 4, Q("27.25 mm")))
sketch1.addConstraint(Sketcher.Constraint("Angle", 7, Q("-112.5 deg")))
sketch1.addConstraint(Sketcher.Constraint("Angle", 1, Q("33.75 deg")))
sketch1.addConstraint(Sketcher.Constraint("Angle", 9, Q("78.75 deg")))
sketch1.addConstraint(Sketcher.Constraint("DistanceX", -1, 1, 6, 2, Q("30.2627 mm")))
sketch1.addConstraint(Sketcher.Constraint("DistanceY", -1, 1, 9, 2, Q("244.430899 mm")))
sketch1.addConstraint(Sketcher.Constraint("DistanceY", -1, 1, 47, 2, Q("290.6935 mm")))
sketch1.addConstraint(Sketcher.Constraint("DistanceX", -1, 1, 9, 2, Q("34.295952 mm")))
sketch1.addConstraint(Sketcher.Constraint("DistanceX", -1, 1, 13, 2, Q("17.40351 mm")))
sketch1.addConstraint(Sketcher.Constraint("DistanceY", -1, 1, 14, 2, Q("257.290089 mm")))
sketch1.addConstraint(Sketcher.Constraint("DistanceX", -1, 1, 22, 2, Q("53.693189 mm")))
sketch1.addConstraint(Sketcher.Constraint("DistanceX", -1, 1, 25, 2, Q("56.36699 mm")))
sketch1.addConstraint(Sketcher.Constraint("DistanceY", -1, 1, 41, 2, Q("283.39438 mm")))
pad1 = body.newObject("PartDesign::Pad", "Pad")
pad1.Profile = sketch1
pad1.Length = 1.5

doc.recompute()
